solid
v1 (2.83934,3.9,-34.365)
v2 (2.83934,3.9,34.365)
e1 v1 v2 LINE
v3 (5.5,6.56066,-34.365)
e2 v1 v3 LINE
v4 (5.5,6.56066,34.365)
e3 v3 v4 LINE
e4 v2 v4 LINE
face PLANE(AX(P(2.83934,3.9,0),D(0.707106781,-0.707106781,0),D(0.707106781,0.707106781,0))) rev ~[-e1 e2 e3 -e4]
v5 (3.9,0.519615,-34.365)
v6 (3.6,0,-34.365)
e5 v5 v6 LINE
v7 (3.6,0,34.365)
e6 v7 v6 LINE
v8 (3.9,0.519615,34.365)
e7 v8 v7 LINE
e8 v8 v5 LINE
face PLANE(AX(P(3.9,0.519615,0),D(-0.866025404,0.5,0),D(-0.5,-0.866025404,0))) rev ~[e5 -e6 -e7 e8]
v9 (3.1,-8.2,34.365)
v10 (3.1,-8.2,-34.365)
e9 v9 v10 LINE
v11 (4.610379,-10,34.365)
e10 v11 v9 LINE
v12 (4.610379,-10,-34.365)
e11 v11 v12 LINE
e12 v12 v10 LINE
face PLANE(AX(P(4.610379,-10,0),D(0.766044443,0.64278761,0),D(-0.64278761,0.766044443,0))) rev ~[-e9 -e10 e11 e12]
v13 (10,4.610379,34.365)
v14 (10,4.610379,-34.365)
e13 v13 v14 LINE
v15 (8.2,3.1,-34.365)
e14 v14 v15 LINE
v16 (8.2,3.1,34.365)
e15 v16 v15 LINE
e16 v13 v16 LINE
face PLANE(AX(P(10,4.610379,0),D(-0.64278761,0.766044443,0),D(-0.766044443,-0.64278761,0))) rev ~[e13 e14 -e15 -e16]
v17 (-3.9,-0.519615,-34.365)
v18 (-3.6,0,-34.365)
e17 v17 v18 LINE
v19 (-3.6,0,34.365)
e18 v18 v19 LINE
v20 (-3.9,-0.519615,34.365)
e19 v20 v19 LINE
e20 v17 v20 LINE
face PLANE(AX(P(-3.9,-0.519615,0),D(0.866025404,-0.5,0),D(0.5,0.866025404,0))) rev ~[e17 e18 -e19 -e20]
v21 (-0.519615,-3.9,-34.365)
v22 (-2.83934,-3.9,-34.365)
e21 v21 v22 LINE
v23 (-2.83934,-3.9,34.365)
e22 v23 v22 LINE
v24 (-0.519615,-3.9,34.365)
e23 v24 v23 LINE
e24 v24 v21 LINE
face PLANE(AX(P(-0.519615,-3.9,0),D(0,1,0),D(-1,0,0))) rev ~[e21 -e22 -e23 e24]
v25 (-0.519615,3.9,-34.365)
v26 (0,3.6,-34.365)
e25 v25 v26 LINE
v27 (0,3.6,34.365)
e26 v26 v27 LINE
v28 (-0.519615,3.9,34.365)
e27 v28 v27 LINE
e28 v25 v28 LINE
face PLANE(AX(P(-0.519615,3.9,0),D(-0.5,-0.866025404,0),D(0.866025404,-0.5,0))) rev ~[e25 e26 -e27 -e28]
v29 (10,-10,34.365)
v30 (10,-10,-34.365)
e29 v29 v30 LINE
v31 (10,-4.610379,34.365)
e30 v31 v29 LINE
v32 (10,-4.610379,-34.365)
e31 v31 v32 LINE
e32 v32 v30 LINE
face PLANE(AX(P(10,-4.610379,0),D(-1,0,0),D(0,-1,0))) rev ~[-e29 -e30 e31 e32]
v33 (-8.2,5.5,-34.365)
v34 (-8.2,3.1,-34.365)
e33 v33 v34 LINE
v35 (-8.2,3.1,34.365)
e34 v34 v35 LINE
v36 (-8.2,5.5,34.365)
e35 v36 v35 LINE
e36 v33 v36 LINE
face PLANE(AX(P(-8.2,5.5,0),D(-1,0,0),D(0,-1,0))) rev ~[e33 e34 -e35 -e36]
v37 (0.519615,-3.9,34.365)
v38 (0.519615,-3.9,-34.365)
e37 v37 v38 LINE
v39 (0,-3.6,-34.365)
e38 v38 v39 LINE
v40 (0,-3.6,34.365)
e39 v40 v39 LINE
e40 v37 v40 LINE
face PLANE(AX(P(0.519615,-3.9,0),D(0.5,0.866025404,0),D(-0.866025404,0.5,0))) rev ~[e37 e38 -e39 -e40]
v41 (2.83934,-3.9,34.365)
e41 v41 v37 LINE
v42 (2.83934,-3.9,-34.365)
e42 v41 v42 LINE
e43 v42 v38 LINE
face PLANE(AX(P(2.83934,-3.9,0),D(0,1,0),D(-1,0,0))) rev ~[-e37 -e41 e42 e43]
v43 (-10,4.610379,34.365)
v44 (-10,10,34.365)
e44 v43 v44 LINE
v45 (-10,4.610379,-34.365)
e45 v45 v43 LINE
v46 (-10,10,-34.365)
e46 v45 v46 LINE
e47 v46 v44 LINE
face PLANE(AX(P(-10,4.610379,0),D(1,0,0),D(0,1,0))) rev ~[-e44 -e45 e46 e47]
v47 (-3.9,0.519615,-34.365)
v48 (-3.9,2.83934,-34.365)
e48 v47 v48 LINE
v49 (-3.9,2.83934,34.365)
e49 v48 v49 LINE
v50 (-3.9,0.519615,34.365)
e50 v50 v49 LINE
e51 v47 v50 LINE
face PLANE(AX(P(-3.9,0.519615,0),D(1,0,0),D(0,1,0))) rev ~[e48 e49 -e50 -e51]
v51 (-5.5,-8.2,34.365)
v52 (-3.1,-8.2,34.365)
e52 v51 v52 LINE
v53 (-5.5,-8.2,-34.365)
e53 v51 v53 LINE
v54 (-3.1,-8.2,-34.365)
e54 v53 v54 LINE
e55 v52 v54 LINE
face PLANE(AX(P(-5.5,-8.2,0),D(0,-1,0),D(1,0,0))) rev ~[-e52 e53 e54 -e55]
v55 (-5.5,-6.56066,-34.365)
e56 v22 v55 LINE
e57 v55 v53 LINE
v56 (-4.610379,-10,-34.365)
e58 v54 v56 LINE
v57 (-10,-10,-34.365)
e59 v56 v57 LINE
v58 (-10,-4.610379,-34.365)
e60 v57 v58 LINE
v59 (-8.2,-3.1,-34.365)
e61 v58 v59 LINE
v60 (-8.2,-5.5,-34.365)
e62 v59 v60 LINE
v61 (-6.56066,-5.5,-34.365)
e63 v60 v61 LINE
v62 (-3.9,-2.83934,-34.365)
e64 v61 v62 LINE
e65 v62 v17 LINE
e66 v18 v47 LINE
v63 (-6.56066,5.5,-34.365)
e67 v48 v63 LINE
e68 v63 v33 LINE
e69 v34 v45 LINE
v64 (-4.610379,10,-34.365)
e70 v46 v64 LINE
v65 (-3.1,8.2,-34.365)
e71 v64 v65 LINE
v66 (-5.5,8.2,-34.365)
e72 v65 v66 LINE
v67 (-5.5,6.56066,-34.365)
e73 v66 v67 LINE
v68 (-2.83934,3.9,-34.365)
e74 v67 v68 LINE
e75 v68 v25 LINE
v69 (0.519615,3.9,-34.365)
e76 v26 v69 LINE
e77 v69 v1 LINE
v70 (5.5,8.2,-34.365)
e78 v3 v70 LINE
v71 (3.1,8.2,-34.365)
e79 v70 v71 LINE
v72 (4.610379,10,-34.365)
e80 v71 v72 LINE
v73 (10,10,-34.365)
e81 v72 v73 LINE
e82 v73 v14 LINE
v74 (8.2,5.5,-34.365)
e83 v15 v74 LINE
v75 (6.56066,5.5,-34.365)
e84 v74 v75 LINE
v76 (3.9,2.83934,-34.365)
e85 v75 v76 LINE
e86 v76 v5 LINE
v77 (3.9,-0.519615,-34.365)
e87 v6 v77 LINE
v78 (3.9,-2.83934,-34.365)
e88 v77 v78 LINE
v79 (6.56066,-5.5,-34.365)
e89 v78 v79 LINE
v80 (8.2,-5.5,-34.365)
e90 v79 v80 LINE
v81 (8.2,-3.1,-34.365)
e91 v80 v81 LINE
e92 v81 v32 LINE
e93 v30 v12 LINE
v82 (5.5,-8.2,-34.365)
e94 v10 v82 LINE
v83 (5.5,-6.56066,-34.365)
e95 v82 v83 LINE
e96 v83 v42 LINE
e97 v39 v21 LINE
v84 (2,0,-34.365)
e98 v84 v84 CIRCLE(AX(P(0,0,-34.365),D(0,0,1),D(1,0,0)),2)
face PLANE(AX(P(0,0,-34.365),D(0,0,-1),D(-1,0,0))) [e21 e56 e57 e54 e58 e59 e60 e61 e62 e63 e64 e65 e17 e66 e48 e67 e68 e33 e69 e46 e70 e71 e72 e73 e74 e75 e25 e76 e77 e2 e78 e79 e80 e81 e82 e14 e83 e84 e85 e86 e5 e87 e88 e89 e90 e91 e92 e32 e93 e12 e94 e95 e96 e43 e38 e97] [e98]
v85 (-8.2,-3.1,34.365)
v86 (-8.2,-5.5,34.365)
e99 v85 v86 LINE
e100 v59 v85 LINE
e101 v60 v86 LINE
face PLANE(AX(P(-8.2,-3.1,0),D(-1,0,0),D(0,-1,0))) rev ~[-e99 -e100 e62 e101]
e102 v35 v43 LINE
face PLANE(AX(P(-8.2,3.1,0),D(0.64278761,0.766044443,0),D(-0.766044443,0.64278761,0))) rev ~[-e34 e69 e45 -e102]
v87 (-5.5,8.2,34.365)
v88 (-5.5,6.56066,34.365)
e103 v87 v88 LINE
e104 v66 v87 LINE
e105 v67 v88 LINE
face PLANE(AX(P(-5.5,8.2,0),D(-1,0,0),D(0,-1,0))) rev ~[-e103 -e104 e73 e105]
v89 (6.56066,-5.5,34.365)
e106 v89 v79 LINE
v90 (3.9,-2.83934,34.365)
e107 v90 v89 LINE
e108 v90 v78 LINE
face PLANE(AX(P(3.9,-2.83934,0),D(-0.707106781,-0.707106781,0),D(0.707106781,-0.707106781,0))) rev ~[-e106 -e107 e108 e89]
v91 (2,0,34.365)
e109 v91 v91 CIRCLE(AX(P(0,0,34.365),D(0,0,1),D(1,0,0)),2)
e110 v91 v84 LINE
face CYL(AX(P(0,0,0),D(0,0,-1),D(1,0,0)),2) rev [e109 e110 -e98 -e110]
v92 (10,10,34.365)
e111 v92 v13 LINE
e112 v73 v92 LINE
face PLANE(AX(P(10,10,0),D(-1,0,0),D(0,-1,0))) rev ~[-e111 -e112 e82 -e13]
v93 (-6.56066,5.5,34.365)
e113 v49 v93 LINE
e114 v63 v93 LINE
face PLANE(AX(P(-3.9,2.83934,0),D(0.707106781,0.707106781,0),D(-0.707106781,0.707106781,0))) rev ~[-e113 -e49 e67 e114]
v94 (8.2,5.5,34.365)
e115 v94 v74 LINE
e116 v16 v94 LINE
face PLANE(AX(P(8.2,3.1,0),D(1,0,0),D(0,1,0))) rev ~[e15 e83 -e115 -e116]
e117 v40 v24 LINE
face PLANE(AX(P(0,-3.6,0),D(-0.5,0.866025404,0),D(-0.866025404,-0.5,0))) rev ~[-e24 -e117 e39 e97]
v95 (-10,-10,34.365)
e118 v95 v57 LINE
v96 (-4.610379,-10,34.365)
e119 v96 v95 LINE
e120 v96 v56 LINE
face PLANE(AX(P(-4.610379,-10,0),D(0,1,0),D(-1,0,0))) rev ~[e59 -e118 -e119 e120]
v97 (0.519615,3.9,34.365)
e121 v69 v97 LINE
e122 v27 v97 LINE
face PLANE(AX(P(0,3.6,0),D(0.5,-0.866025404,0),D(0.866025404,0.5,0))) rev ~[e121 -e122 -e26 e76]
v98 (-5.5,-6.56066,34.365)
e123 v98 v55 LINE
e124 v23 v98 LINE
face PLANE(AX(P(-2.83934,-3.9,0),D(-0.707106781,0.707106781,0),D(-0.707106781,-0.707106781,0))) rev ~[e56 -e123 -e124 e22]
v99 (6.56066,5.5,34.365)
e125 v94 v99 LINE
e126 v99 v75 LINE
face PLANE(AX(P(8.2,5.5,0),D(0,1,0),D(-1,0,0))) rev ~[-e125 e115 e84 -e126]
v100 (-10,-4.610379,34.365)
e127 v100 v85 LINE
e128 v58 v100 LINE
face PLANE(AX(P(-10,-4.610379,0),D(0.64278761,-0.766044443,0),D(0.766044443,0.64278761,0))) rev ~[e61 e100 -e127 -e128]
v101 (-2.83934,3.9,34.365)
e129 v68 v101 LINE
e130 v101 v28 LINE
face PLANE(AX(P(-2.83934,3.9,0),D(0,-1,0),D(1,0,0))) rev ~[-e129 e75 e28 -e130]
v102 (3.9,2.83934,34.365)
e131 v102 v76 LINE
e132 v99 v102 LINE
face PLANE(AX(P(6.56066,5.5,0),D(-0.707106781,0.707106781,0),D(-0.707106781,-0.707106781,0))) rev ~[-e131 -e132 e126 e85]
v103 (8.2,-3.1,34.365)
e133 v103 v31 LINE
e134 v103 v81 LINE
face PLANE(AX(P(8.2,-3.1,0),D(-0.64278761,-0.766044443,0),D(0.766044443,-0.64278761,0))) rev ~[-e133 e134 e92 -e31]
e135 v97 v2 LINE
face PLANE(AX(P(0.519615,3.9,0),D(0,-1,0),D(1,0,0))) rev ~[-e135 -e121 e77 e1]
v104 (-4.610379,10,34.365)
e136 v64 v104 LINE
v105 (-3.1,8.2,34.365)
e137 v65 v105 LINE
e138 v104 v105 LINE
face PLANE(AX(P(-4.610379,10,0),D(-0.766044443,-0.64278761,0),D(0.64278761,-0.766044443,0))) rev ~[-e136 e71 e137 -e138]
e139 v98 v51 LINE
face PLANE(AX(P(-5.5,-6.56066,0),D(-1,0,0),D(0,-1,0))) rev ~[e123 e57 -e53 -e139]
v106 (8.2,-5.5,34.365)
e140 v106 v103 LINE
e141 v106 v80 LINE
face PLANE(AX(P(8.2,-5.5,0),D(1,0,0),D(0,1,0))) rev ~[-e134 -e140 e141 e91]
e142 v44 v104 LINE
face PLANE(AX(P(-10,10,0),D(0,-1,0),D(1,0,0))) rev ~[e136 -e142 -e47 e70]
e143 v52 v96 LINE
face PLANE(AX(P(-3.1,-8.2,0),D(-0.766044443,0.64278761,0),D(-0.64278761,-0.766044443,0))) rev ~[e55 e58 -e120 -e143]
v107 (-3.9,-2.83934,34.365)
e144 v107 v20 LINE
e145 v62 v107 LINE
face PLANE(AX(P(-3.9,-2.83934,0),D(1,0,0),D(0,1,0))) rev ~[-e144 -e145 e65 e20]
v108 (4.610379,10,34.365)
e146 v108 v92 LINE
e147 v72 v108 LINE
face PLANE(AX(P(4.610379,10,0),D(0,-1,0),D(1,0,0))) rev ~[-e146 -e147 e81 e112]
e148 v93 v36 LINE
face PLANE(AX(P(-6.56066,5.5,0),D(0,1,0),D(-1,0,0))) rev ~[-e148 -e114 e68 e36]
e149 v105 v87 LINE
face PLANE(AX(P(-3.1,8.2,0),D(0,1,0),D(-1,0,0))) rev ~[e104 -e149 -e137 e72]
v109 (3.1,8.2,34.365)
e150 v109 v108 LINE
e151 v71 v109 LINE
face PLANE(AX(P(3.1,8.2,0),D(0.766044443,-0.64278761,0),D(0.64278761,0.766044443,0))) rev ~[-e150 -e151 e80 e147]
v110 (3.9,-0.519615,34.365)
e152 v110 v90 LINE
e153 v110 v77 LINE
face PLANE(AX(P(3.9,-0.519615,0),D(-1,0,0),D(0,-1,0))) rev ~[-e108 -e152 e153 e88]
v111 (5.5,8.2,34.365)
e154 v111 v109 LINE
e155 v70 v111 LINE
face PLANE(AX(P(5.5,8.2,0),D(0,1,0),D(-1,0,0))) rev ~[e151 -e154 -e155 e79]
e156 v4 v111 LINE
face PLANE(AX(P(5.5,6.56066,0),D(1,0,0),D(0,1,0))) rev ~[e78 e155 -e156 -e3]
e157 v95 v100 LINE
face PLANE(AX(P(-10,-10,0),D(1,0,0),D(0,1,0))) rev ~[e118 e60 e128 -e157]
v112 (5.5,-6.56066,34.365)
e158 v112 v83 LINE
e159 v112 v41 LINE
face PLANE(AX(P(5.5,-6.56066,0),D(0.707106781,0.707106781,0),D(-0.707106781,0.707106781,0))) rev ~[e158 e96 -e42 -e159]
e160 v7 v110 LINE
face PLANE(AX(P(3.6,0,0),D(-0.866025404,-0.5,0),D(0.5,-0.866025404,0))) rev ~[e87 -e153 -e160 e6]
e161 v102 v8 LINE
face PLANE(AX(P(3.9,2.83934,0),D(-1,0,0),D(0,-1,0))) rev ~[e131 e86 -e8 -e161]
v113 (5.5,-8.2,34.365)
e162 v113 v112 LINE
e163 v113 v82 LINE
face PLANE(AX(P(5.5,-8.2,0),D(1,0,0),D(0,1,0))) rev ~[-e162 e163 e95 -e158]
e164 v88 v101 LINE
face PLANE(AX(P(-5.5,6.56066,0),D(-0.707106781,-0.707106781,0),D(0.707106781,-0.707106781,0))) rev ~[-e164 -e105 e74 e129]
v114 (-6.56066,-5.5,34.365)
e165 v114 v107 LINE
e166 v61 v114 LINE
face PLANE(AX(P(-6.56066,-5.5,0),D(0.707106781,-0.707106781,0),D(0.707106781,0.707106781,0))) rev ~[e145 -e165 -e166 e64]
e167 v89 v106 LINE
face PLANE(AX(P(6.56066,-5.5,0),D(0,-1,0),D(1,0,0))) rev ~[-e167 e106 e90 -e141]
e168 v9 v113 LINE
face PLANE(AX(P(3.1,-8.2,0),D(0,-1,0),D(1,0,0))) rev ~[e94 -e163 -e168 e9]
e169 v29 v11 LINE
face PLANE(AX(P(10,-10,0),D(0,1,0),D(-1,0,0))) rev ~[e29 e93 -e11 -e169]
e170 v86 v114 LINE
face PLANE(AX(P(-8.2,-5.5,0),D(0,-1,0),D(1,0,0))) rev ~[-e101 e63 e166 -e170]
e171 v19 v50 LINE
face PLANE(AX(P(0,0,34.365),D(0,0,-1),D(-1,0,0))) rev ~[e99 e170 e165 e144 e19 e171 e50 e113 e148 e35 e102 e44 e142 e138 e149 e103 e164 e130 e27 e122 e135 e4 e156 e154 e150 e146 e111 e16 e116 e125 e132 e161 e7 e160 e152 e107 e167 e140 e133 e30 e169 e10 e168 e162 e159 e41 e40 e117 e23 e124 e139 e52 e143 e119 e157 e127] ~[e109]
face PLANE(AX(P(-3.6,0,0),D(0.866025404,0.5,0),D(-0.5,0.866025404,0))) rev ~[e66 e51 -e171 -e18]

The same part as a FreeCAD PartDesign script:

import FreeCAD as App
import Part
import Sketcher
from FreeCAD import Vector
Q = App.Units.Quantity


def add_polygon(sketch, points):
    """Adds a closed chain of lines whose ends are joined by coincident constraints."""
    first, n = sketch.GeometryCount, len(points)
    for a, b in zip(points, points[1:] + points[:1]):
        sketch.addGeometry(Part.LineSegment(App.Vector(*a, 0), App.Vector(*b, 0)), False)
    for i in range(n):
        sketch.addConstraint(Sketcher.Constraint("Coincident", first + i, 2, first + (i + 1) % n, 1))

doc = App.newDocument("Part")
body = doc.addObject("PartDesign::Body", "Body")

sketch1 = body.newObject("Sketcher::SketchObject", "Sketch")
sketch1.AttachmentSupport = (doc.getObject("XY_Plane"), [""])
sketch1.MapMode = "FlatFace"
add_polygon(sketch1, [(10, 4.610379), (10, 10), (4.610379, 10), (3.1, 8.2), (5.5, 8.2), (5.5, 6.56066), (2.83934, 3.9), (0.519615, 3.9), (0, 3.6), (-0.519615, 3.9), (-2.83934, 3.9), (-5.5, 6.56066), (-5.5, 8.2), (-3.1, 8.2), (-4.610379, 10), (-10, 10), (-10, 4.610379), (-8.2, 3.1), (-8.2, 5.5), (-6.56066, 5.5), (-3.9, 2.83934), (-3.9, 0.519615), (-3.6, 0), (-3.9, -0.519615), (-3.9, -2.83934), (-6.56066, -5.5), (-8.2, -5.5), (-8.2, -3.1), (-10, -4.610379), (-10, -10), (-4.610379, -10), (-3.1, -8.2), (-5.5, -8.2), (-5.5, -6.56066), (-2.83934, -3.9), (-0.519615, -3.9), (0, -3.6), (0.519615, -3.9), (2.83934, -3.9), (5.5, -6.56066), (5.5, -8.2), (3.1, -8.2), (4.610379, -10), (10, -10), (10, -4.610379), (8.2, -3.1), (8.2, -5.5), (6.56066, -5.5), (3.9, -2.83934), (3.9, -0.519615), (3.6, 0), (3.9, 0.519615), (3.9, 2.83934), (6.56066, 5.5), (8.2, 5.5), (8.2, 3.1)])
sketch1.addGeometry(Part.Circle(Vector(0, 0, 0), Vector(0, 0, 1), 2), False)
sketch1.addConstraint([
    Sketcher.Constraint("Vertical", 0),
    Sketcher.Constraint("Horizontal", 1),
    Sketcher.Constraint("Horizontal", 3),
    Sketcher.Constraint("Vertical", 4),
    Sketcher.Constraint("Horizontal", 6),
    Sketcher.Constraint("Horizontal", 9),
    Sketcher.Constraint("Vertical", 11),
    Sketcher.Constraint("Horizontal", 12),
    Sketcher.Constraint("Horizontal", 14),
    Sketcher.Constraint("Vertical", 15),
    Sketcher.Constraint("Vertical", 17),
    Sketcher.Constraint("Horizontal", 18),
    Sketcher.Constraint("Vertical", 20),
    Sketcher.Constraint("Vertical", 23),
    Sketcher.Constraint("Horizontal", 25),
    Sketcher.Constraint("Vertical", 26),
    Sketcher.Constraint("Vertical", 28),
    Sketcher.Constraint("Horizontal", 29),
    Sketcher.Constraint("Horizontal", 31),
    Sketcher.Constraint("Vertical", 32),
    Sketcher.Constraint("Horizontal", 34),
    Sketcher.Constraint("Horizontal", 37),
    Sketcher.Constraint("Vertical", 39),
    Sketcher.Constraint("Horizontal", 40),
    Sketcher.Constraint("Horizontal", 42),
    Sketcher.Constraint("Vertical", 43),
    Sketcher.Constraint("Vertical", 45),
    Sketcher.Constraint("Horizontal", 46),
    Sketcher.Constraint("Vertical", 48),
    Sketcher.Constraint("Vertical", 51),
    Sketcher.Constraint("Horizontal", 53),
    Sketcher.Constraint("Vertical", 54),
    Sketcher.Constraint("Coincident", 56, 3, -1, 1),
    Sketcher.Constraint("Symmetric", 0, 2, 28, 2, -1, 1),
    Sketcher.Constraint("Symmetric", 2, 2, 30, 2, -1, 1),
    Sketcher.Constraint("Symmetric", 4, 2, 32, 2, -1, 1),
    Sketcher.Constraint("Symmetric", 5, 2, 33, 2, -1, 1),
    Sketcher.Constraint("Symmetric", 7, 2, 35, 2, -1, 1),
    Sketcher.Constraint("Symmetric", 8, 2, 36, 2, -1, 1),
    Sketcher.Constraint("Symmetric", 10, 2, 38, 2, -1, 1),
    Sketcher.Constraint("Symmetric", 12, 2, 40, 2, -1, 1),
    Sketcher.Constraint("Symmetric", 13, 2, 41, 2, -1, 1),
    Sketcher.Constraint("Symmetric", 15, 2, 43, 2, -1, 1),
    Sketcher.Constraint("Symmetric", 16, 2, 44, 2, -1, 1),
    Sketcher.Constraint("Symmetric", 18, 2, 46, 2, -1, 1),
    Sketcher.Constraint("Symmetric", 19, 2, 47, 2, -1, 1),
    Sketcher.Constraint("Symmetric", 21, 2, 49, 2, -1, 1),
    Sketcher.Constraint("Symmetric", 22, 2, 50, 2, -1, 1),
    Sketcher.Constraint("Symmetric", 24, 2, 52, 2, -1, 1),
    Sketcher.Constraint("Symmetric", 26, 2, 54, 2, -1, 1),
    Sketcher.Constraint("Symmetric", 6, 2, 8, 2, -2),
    Sketcher.Constraint("Symmetric", 4, 2, 10, 2, -2),
    Sketcher.Constraint("Symmetric", 2, 2, 12, 2, -2),
    Sketcher.Constraint("Symmetric", 1, 2, 13, 2, -2),
    Sketcher.Constraint("Symmetric", 27, 2, 43, 2, -2),
    Sketcher.Constraint("Symmetric", 26, 2, 44, 2, -2),
    Sketcher.Constraint("Symmetric", 24, 2, 46, 2, -2),
    Sketcher.Constraint("Symmetric", 23, 2, 47, 2, -2),
    Sketcher.Constraint("PointOnObject", 7, 2, -2),
    Sketcher.Constraint("PointOnObject", 21, 2, -1),
    Sketcher.Constraint("Perpendicular", 5, 10),
    Sketcher.Constraint("Perpendicular", 2, 16),
    Sketcher.Constraint("Parallel", 10, 19),
    Sketcher.Constraint("Perpendicular", 7, 21),
    Sketcher.Constraint("Perpendicular", 8, 22),
    Sketcher.Constraint("Perpendicular", 19, 24),
    Sketcher.Constraint("Perpendicular", 16, 30),
    Sketcher.Constraint("Perpendicular", 21, 35),
    Sketcher.Constraint("Perpendicular", 33, 38),
    Sketcher.Constraint("Perpendicular", 35, 49),
    Sketcher.Constraint("Perpendicular", 47, 52),
    Sketcher.Constraint("Perpendicular", 41, 55),
    Sketcher.Constraint("Equal", 42, 0),
    Sketcher.Constraint("Equal", 53, 4),
    Sketcher.Constraint("Equal", 40, 17),
    Sketcher.Constraint("Equal", 37, 20),
    Sketcher.Constraint("Equal", 13, 16),
    Sketcher.Constraint("Equal", 10, 19),
    Sketcher.Constraint("Equal", 8, 21),
    Sketcher.Constraint("Diameter", 56, 4.0),
    Sketcher.Constraint("Angle", 2, Q("-130 deg")),
    Sketcher.Constraint("Angle", 7, Q("-150 deg")),
    Sketcher.Constraint("DistanceX", 3, 1, 3, 2, 2.4),
    Sketcher.Constraint("DistanceX", -1, 1, 0, 2, 10.0),
    Sketcher.Constraint("Distance", 7, 0.6),
    Sketcher.Constraint("DistanceX", -1, 1, 2, 2, 3.1),
    Sketcher.Constraint("DistanceY", -1, 1, 2, 2, 8.2),
    Sketcher.Constraint("DistanceY", -1, 1, 5, 2, 3.9),
    Sketcher.Constraint("DistanceX", 18, 1, 18, 2, 1.63934),
])
pad1 = body.newObject("PartDesign::Pad", "Pad")
pad1.Profile = sketch1
pad1.Length = 68.73
pad1.Midplane = True

doc.recompute()
